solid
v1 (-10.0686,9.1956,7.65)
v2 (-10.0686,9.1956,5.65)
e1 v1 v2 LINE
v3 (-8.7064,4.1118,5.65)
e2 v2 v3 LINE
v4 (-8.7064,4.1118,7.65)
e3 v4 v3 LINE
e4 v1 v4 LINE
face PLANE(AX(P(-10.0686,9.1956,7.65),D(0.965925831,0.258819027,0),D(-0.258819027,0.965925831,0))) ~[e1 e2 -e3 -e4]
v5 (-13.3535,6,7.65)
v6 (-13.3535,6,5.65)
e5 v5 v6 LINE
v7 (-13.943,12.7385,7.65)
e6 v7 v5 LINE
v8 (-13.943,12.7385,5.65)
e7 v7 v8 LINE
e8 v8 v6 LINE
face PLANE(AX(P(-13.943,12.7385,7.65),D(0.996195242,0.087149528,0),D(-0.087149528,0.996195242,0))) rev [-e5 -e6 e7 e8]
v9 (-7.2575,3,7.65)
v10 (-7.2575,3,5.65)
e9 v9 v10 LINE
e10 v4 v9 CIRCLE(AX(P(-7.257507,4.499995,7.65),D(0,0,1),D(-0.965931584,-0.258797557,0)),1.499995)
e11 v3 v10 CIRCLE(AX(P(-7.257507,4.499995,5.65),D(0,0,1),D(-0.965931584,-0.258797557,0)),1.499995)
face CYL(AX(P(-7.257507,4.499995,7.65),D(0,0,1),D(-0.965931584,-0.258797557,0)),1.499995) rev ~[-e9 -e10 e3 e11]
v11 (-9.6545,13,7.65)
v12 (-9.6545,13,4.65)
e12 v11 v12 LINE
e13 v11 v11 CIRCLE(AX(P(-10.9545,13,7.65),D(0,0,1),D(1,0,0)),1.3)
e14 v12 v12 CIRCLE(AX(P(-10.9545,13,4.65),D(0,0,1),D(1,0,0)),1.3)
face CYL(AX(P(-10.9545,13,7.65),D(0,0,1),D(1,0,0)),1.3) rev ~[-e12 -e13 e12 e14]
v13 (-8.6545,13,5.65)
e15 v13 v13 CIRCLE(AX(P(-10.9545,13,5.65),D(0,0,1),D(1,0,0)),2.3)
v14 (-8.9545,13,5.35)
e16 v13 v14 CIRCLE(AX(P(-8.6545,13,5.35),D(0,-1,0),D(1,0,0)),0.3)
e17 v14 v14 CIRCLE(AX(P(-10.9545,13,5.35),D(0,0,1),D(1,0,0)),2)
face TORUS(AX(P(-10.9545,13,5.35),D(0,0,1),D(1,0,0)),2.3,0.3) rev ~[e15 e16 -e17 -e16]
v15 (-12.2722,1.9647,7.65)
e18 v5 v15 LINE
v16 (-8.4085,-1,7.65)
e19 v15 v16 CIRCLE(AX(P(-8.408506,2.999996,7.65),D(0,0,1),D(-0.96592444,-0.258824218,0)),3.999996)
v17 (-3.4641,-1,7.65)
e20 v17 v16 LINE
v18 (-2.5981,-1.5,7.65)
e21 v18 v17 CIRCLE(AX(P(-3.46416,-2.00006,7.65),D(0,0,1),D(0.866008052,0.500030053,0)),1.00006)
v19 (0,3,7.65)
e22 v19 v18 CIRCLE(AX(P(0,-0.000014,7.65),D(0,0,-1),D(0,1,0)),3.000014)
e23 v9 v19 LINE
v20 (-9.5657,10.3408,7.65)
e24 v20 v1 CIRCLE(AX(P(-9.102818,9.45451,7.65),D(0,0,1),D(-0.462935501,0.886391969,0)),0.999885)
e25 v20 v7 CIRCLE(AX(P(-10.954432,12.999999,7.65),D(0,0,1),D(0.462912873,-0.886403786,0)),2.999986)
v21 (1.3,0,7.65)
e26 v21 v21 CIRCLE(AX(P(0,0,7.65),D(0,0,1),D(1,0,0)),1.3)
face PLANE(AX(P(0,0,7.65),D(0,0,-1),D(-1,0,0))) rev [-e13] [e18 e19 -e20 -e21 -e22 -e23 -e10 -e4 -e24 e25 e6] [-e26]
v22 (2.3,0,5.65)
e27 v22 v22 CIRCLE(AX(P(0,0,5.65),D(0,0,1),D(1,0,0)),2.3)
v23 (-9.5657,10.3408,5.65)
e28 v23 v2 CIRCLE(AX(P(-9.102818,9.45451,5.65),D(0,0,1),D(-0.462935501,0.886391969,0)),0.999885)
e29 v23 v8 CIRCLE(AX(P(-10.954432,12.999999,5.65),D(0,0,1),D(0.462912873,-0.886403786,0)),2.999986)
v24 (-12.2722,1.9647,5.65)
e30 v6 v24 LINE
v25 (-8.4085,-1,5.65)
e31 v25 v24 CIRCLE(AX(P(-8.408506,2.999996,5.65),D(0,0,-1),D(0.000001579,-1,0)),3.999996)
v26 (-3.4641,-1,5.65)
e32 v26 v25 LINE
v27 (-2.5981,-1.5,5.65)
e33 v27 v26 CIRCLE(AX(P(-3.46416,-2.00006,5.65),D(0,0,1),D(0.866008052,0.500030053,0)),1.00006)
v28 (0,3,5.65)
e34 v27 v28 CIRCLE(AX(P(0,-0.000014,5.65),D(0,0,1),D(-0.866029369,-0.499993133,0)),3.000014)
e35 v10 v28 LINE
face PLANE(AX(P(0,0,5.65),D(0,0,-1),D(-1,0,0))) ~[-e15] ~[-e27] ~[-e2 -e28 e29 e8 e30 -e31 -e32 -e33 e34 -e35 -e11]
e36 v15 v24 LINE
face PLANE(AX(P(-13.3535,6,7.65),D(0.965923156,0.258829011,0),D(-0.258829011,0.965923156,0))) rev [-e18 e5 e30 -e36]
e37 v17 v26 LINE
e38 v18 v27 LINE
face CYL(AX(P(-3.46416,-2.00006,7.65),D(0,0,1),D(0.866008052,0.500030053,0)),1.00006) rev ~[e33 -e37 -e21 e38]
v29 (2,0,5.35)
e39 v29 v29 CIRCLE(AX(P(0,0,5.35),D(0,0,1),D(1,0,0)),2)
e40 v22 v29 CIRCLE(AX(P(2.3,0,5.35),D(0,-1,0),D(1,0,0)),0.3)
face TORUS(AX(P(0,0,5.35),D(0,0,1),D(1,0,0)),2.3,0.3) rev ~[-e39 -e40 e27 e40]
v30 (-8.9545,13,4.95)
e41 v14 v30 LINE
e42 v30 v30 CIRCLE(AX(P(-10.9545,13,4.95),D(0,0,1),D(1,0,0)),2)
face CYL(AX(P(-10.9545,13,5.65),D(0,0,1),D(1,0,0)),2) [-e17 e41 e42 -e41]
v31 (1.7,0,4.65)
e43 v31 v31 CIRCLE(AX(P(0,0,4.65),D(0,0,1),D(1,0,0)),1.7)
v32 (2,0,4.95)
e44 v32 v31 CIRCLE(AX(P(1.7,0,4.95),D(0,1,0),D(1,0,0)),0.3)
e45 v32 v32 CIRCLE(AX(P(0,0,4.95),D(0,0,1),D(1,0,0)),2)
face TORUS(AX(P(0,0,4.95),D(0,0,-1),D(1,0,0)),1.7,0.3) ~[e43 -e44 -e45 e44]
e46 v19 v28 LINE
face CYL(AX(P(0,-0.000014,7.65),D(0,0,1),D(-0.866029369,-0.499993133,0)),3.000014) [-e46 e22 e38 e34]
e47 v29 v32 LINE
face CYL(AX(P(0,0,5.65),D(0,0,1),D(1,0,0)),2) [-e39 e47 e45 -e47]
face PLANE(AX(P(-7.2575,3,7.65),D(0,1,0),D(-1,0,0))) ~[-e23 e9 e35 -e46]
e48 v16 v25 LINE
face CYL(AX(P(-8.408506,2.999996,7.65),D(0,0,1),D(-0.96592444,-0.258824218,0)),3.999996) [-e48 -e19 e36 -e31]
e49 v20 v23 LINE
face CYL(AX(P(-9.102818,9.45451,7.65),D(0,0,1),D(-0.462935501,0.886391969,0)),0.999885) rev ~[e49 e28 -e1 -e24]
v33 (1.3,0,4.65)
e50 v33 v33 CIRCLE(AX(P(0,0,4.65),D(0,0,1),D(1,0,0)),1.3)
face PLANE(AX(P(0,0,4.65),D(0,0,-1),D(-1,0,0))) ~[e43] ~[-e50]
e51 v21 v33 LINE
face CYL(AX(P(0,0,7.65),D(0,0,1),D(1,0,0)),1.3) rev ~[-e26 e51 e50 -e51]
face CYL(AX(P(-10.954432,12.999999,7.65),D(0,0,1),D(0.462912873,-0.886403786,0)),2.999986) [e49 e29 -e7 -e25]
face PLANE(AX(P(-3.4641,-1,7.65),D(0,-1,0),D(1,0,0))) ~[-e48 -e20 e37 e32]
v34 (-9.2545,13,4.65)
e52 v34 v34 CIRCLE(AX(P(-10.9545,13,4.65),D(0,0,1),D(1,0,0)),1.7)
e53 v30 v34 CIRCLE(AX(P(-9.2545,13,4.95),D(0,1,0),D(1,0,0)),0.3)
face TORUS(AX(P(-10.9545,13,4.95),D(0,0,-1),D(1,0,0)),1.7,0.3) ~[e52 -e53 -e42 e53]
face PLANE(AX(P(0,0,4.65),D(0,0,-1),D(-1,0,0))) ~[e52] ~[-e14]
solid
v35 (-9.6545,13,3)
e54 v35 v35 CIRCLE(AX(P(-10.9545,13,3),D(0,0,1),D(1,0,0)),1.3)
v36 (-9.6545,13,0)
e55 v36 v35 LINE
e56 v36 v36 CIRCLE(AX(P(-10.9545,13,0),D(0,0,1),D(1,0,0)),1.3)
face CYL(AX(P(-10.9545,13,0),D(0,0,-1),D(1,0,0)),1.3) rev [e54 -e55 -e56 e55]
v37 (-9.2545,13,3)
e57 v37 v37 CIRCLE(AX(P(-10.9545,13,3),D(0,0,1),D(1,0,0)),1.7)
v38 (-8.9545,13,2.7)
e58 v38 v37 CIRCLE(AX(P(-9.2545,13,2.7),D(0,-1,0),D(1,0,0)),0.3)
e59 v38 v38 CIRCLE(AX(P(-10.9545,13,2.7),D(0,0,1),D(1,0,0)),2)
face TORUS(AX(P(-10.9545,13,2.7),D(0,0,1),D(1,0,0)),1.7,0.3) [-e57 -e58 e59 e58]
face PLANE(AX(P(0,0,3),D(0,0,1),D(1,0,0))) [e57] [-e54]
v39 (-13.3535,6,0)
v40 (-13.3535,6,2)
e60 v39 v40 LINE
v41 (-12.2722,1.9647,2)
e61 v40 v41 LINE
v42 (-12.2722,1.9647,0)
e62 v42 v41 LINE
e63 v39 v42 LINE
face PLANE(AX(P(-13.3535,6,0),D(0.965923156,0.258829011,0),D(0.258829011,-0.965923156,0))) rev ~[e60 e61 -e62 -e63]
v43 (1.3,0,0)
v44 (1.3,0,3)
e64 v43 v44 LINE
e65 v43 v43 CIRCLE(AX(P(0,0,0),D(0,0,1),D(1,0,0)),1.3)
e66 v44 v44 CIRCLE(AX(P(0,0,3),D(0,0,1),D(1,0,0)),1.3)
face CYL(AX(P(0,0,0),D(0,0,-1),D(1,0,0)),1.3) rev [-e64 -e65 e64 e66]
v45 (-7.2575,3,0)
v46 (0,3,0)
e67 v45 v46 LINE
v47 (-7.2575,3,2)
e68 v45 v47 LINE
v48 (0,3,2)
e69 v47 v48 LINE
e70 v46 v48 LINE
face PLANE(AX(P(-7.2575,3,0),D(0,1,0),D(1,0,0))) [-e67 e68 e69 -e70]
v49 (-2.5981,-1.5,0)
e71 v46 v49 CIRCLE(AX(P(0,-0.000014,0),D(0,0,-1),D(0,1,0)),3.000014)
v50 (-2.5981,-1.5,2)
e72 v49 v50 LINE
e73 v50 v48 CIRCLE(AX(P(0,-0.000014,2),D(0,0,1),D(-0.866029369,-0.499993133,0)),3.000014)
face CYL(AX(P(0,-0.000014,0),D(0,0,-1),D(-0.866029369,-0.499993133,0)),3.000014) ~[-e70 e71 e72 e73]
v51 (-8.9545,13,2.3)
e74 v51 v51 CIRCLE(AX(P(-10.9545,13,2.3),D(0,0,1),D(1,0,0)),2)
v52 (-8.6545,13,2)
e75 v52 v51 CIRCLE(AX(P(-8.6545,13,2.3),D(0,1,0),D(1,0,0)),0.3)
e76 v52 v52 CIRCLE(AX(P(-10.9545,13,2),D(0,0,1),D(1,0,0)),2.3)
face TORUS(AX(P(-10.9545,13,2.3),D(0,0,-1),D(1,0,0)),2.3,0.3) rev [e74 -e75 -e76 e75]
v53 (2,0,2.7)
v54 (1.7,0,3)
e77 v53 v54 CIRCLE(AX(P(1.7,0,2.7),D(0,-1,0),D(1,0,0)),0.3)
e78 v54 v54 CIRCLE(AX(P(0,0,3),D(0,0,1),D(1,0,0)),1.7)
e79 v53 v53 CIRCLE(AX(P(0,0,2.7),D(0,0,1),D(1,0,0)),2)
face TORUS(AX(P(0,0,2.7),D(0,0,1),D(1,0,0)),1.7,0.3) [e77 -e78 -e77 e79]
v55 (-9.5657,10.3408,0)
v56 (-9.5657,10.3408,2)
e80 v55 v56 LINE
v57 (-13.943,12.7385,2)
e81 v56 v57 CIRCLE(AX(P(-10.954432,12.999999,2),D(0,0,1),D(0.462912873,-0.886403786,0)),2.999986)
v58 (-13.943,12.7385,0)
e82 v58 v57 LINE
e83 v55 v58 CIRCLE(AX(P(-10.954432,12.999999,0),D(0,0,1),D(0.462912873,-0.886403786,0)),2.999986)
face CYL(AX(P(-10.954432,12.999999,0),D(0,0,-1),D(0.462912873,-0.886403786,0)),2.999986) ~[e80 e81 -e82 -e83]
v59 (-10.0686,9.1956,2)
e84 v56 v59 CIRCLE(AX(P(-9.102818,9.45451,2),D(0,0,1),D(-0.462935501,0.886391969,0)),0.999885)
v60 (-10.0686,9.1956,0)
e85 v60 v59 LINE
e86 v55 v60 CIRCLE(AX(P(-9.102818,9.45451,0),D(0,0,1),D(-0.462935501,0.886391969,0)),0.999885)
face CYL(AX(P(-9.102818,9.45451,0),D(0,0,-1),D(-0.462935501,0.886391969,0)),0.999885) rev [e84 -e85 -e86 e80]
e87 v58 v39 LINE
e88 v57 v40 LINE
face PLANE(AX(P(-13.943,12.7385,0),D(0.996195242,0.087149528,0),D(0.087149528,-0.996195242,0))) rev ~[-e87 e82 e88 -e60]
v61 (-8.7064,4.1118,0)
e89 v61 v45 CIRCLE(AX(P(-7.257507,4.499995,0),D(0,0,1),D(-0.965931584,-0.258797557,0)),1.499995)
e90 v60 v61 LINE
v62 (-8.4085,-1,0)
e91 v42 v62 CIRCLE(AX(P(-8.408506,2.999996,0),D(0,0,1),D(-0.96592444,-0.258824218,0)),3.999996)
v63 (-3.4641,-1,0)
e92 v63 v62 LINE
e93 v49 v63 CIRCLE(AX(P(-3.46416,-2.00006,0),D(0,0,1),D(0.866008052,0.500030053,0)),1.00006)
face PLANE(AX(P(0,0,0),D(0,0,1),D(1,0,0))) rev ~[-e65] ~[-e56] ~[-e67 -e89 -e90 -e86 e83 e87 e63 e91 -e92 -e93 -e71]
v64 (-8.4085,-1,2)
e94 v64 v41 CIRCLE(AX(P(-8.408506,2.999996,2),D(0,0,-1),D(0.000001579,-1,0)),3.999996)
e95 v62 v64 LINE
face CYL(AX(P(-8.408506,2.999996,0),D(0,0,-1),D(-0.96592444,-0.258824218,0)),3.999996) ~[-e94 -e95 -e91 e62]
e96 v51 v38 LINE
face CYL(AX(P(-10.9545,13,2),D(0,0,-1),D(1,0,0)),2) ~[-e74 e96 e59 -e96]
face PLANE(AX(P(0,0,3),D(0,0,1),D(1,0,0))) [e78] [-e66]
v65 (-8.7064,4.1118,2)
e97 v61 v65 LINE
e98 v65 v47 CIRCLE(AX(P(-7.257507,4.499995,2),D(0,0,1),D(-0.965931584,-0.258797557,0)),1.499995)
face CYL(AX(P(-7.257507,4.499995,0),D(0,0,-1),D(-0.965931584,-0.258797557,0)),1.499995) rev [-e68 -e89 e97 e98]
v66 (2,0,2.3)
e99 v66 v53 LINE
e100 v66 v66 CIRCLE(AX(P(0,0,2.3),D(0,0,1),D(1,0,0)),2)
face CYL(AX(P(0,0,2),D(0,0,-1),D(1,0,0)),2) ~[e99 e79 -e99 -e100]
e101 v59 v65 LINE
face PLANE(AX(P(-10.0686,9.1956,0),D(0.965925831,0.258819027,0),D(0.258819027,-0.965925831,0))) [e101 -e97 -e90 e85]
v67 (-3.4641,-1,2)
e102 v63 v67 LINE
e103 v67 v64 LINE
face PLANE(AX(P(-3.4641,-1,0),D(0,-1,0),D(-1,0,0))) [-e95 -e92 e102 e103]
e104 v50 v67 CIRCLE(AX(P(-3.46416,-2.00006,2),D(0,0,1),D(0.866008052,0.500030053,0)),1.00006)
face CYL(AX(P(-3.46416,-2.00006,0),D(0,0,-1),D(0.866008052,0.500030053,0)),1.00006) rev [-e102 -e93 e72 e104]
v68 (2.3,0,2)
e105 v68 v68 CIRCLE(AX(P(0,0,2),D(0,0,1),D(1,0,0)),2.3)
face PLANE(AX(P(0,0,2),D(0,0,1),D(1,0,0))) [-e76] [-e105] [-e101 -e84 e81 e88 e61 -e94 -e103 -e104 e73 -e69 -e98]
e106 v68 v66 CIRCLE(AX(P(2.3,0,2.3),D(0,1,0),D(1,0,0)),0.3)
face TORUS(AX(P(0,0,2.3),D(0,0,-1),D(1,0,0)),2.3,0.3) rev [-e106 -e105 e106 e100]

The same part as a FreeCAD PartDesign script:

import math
import FreeCAD as App
import Part
import Sketcher
from FreeCAD import Vector
Q = App.Units.Quantity


def edges_at(feature, points):
    """Names of the edges that pass closest to the given points."""
    edges = feature.Shape.Edges
    near = lambda p: min(range(len(edges)), key=lambda i: edges[i].distToShape(Part.Vertex(*p))[0])
    return sorted({f"Edge{near(p) + 1}" for p in points})

doc = App.newDocument("Part")
body = doc.addObject("PartDesign::Body", "Body")
body.AllowCompound = True

sketch1 = body.newObject("Sketcher::SketchObject", "Sketch")
sketch1.AttachmentSupport = (doc.getObject("XY_Plane"), [""])
sketch1.MapMode = "FlatFace"
sketch1.addGeometry([
    Part.ArcOfCircle(Part.Circle(Vector(-8.4085, 3, 0), Vector(0, 0, 1), 4.000003), math.radians(-164.999658), math.radians(-90)),
    Part.LineSegment(Vector(-8.4085, -1, 0), Vector(-3.4641, -1, 0)),
    Part.ArcOfCircle(Part.Circle(Vector(-3.4641, -2, 0), Vector(0, 0, 1), 0.999978), math.radians(30.000728), math.radians(90)),
    Part.ArcOfCircle(Part.Circle(Vector(0, 0, 0), Vector(0, 0, 1), 3.000021), math.radians(-150.000227), math.radians(90)),
    Part.LineSegment(Vector(0, 3, 0), Vector(-7.2575, 3, 0)),
    Part.ArcOfCircle(Part.Circle(Vector(-7.2575, 4.5, 0), Vector(0, 0, 1), 1.500003), math.radians(-165.001165), math.radians(-90)),
    Part.LineSegment(Vector(-8.7064, 4.1118, 0), Vector(-10.0686, 9.1956, 0)),
    Part.ArcOfCircle(Part.Circle(Vector(-9.1027, 9.4544, 0), Vector(0, 0, 1), 1.000037), math.radians(117.579755), math.radians(194.999329)),
    Part.ArcOfCircle(Part.Circle(Vector(-10.9545, 13, 0), Vector(0, 0, 1), 3.000018), math.radians(-62.42363), math.radians(185.000764)),
    Part.LineSegment(Vector(-13.943, 12.7385, 0), Vector(-13.3535, 6, 0)),
    Part.LineSegment(Vector(-13.3535, 6, 0), Vector(-12.2722, 1.9647, 0)),
    Part.Circle(Vector(0, 0, 0), Vector(0, 0, 1), 1.3),
    Part.Circle(Vector(-10.9545, 13, 0), Vector(0, 0, 1), 1.3),
], False)
sketch1.addConstraint([
    Sketcher.Constraint("Tangent", 0, 2, 1, 1),
    Sketcher.Constraint("Tangent", 1, 2, 2, 2),
    Sketcher.Constraint("Tangent", 2, 1, 3, 1),
    Sketcher.Constraint("Tangent", 3, 2, 4, 1),
    Sketcher.Constraint("Tangent", 4, 2, 5, 2),
    Sketcher.Constraint("Tangent", 5, 1, 6, 1),
    Sketcher.Constraint("Tangent", 6, 2, 7, 2),
    Sketcher.Constraint("Tangent", 7, 1, 8, 1),
    Sketcher.Constraint("Tangent", 8, 2, 9, 1),
    Sketcher.Constraint("Coincident", 9, 2, 10, 1),
    Sketcher.Constraint("Tangent", 10, 2, 0, 1),
    Sketcher.Constraint("Horizontal", 1),
    Sketcher.Constraint("Horizontal", 4),
    Sketcher.Constraint("Coincident", 3, 3, -1, 1),
    Sketcher.Constraint("Coincident", 11, 3, -1, 1),
    Sketcher.Constraint("Coincident", 12, 3, 8, 3),
    Sketcher.Constraint("Equal", 2, 7),
    Sketcher.Constraint("Equal", 3, 8),
    Sketcher.Constraint("Equal", 11, 12),
    Sketcher.Constraint("Parallel", 6, 10),
    Sketcher.Constraint("Horizontal", 0, 3, 3, 2),
    Sketcher.Constraint("Radius", 0, Q("4 mm")),
    Sketcher.Constraint("Radius", 2, Q("1 mm")),
    Sketcher.Constraint("Radius", 3, Q("3 mm")),
    Sketcher.Constraint("Diameter", 11, Q("2.6 mm")),
    Sketcher.Constraint("Radius", 5, Q("1.5 mm")),
    Sketcher.Constraint("Angle", 6, Q("105 deg")),
    Sketcher.Constraint("DistanceY", -1, 1, 9, 2, Q("6 mm")),
    Sketcher.Constraint("DistanceY", 0, 3, 8, 3, Q("10 mm")),
    Sketcher.Constraint("Angle", 9, Q("-85.0004 deg")),
    Sketcher.Constraint("DistanceX", 1, 1, 1, 2, Q("4.9444 mm")),
    Sketcher.Constraint("DistanceX", 4, 2, 4, 1, Q("7.2575 mm")),
])
pad1 = body.newObject("PartDesign::Pad", "Pad")
pad1.Profile = sketch1
pad1.Length = 2

sketch2 = body.newObject("Sketcher::SketchObject", "Sketch001")
sketch2.AttachmentSupport = (doc.getObject("XY_Plane"), [""])
sketch2.MapMode = "FlatFace"
sketch2.AttachmentOffset = App.Placement(Vector(0, 0, 2), App.Rotation())
sketch2.addGeometry([
    Part.Circle(Vector(-10.9545, 13, 0), Vector(0, 0, 1), 2),
    Part.Circle(Vector(-10.9545, 13, 0), Vector(0, 0, 1), 1.3),
    Part.Circle(Vector(0, 0, 0), Vector(0, 0, 1), 2),
    Part.Circle(Vector(0, 0, 0), Vector(0, 0, 1), 1.3),
], False)
sketch2.addConstraint([
    Sketcher.Constraint("Coincident", 2, 3, -1, 1),
    Sketcher.Constraint("Coincident", 3, 3, -1, 1),
    Sketcher.Constraint("Coincident", 1, 3, 0, 3),
    Sketcher.Constraint("Equal", 0, 2),
    Sketcher.Constraint("Equal", 1, 3),
    Sketcher.Constraint("Diameter", 0, Q("4 mm")),
    Sketcher.Constraint("Diameter", 1, Q("2.6 mm")),
    Sketcher.Constraint("DistanceY", -1, 1, 0, 3, Q("13 mm")),
    Sketcher.Constraint("DistanceX", 0, 3, -1, 1, Q("10.9545 mm")),
])
pad2 = body.newObject("PartDesign::Pad", "Pad001")
pad2.Profile = sketch2
pad2.Length = 1
doc.recompute()

fillet = body.newObject("PartDesign::Fillet", "Fillet")
fillet.Base = (pad2, edges_at(pad2, [
    (-2, 0, 2),
    (-12.954, 13, 2),
    (-12.954, 13, 3),
    (-2, 0, 3),
]))
fillet.Radius = 0.3
doc.recompute()

datumplane = body.newObject("PartDesign::Plane", "DatumPlane")
datumplane.AttachmentSupport = (doc.getObject("XY_Plane"), [""])
datumplane.MapMode = "FlatFace"
datumplane.AttachmentOffset = App.Placement(Vector(0, 0, 3.825), App.Rotation())
mirrored = body.newObject("PartDesign::Mirrored", "Mirrored")
mirrored.TransformMode = "Transform body"
mirrored.MirrorPlane = (datumplane, [""])
body.Tip = mirrored

doc.recompute()
